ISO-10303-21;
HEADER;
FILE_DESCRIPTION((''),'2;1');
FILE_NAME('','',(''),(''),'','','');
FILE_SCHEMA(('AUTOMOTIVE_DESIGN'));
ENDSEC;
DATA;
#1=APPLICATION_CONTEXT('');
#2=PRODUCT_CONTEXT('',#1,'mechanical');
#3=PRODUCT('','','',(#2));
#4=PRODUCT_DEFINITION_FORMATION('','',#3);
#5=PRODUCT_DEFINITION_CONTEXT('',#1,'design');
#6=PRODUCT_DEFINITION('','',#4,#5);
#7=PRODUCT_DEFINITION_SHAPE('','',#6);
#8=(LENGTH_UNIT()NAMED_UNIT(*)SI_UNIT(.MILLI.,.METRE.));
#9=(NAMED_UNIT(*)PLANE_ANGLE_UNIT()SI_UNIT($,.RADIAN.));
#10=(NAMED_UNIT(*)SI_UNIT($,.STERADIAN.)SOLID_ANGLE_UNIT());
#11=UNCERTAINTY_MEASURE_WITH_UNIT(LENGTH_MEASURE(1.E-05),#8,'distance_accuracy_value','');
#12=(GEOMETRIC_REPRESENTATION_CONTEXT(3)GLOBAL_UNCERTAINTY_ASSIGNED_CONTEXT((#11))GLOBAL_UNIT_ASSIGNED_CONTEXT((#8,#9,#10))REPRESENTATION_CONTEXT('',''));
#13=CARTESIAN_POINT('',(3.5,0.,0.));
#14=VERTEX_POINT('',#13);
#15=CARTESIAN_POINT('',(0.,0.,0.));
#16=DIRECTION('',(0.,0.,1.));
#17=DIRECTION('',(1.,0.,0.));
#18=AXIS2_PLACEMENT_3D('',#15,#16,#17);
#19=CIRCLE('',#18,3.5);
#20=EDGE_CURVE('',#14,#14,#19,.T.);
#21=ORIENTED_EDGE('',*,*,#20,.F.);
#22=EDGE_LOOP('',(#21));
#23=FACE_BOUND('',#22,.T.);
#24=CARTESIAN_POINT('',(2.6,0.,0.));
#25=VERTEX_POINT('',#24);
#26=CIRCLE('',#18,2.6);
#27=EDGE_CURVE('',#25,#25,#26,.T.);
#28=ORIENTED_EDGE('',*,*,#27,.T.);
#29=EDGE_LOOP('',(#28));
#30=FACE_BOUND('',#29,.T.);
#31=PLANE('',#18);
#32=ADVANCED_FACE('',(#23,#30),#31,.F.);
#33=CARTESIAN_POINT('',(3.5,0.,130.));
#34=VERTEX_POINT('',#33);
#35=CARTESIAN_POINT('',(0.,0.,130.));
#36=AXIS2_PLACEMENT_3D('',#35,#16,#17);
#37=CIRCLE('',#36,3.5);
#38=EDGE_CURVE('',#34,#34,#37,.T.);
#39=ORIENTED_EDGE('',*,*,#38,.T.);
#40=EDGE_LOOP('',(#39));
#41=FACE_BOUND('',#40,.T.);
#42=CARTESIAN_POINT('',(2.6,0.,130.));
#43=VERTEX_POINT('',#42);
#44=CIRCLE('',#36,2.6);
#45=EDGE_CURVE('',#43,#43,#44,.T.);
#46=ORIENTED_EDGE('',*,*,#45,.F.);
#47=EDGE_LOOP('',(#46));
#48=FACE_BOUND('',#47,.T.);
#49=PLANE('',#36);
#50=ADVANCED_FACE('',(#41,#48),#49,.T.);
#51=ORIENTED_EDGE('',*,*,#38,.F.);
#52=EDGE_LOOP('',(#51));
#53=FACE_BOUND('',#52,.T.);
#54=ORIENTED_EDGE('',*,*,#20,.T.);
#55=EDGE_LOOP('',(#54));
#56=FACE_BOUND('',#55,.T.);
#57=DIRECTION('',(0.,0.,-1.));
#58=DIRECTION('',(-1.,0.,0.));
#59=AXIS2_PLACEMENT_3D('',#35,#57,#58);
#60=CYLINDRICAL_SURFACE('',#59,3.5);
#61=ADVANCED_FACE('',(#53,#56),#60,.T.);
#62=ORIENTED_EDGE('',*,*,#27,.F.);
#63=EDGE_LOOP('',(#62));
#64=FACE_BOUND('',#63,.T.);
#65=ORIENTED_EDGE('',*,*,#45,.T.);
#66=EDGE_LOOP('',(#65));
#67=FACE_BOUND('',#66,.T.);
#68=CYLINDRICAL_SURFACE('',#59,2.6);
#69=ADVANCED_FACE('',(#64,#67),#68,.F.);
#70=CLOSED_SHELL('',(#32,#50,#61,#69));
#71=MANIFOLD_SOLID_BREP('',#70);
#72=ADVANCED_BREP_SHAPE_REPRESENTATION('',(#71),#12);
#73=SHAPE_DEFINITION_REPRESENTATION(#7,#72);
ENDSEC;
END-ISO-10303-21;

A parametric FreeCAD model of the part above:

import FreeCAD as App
import Part
import Sketcher

doc = App.newDocument("Part")
body = doc.addObject("PartDesign::Body", "Body")

# Sketch on XY plane
sketch1 = body.newObject("Sketcher::SketchObject", "Sketch")
sketch1.AttachmentSupport = (doc.getObject("XY_Plane"), [""])
sketch1.MapMode = "FlatFace"
sketch1.addGeometry(Part.Circle(App.Vector(0, 0, 0), App.Vector(0, 0, 1), 3.5), False)
sketch1.addGeometry(Part.Circle(App.Vector(0, 0, 0), App.Vector(0, 0, 1), 2.6), False)
sketch1.addConstraint(Sketcher.Constraint("Coincident", 0, 3, -1, 1))
sketch1.addConstraint(Sketcher.Constraint("Coincident", 1, 3, -1, 1))
sketch1.addConstraint(Sketcher.Constraint("Diameter", 0, 7.0))
sketch1.addConstraint(Sketcher.Constraint("Diameter", 1, 5.2))
pad1 = body.newObject("PartDesign::Pad", "Pad")
pad1.Profile = sketch1
pad1.Length = 130

doc.recompute()
